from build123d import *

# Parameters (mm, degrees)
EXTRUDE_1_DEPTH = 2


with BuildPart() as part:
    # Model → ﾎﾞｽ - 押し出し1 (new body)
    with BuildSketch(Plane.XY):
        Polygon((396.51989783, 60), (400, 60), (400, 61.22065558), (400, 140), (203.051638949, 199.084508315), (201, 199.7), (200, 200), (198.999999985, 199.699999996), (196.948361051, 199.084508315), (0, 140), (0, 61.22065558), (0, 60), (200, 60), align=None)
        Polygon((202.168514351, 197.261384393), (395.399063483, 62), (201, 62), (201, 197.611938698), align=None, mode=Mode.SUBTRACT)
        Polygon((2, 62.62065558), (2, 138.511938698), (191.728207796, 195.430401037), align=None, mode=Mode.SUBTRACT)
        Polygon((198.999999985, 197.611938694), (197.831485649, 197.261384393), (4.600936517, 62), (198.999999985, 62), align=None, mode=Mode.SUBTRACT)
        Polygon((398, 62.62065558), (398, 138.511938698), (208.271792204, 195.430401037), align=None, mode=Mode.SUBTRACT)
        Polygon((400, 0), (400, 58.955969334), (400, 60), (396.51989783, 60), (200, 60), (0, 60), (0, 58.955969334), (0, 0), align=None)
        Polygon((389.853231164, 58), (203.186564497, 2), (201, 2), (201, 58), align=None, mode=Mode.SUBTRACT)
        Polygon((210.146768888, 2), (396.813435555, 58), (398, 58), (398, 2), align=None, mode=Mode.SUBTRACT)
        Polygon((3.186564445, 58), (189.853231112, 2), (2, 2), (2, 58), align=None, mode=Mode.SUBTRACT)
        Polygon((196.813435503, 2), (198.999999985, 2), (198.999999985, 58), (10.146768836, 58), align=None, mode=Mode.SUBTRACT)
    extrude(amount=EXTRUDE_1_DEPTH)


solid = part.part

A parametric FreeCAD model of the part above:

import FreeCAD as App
import Part
import Sketcher

doc = App.newDocument("Part")
body = doc.addObject("PartDesign::Body", "Body")

# Sketch on XY plane
sketch1 = doc.addObject("Sketcher::SketchObject", "Sketch")
body.addObject(sketch1)
sketch1.AttachmentSupport = (doc.XY_Plane, [""])
sketch1.MapMode = "FlatFace"
sketch1.addGeometry(Part.LineSegment(App.Vector(400, 140, 0), App.Vector(203.1, 199.1, 0)), False)
sketch1.addGeometry(Part.LineSegment(App.Vector(203.1, 199.1, 0), App.Vector(201, 199.7, 0)), False)
sketch1.addGeometry(Part.LineSegment(App.Vector(201, 199.7, 0), App.Vector(200, 200, 0)), False)
sketch1.addGeometry(Part.LineSegment(App.Vector(200, 200, 0), App.Vector(199, 199.7, 0)), False)
sketch1.addGeometry(Part.LineSegment(App.Vector(199, 199.7, 0), App.Vector(196.9, 199.1, 0)), False)
sketch1.addGeometry(Part.LineSegment(App.Vector(196.9, 199.1, 0), App.Vector(0, 140, 0)), False)
sketch1.addGeometry(Part.LineSegment(App.Vector(0, 140, 0), App.Vector(0, 0, 0)), False)
sketch1.addGeometry(Part.LineSegment(App.Vector(0, 0, 0), App.Vector(400, 0, 0)), False)
sketch1.addGeometry(Part.LineSegment(App.Vector(400, 0, 0), App.Vector(400, 140, 0)), False)
sketch1.addGeometry(Part.LineSegment(App.Vector(2, 58, 0), App.Vector(3.2, 58, 0)), False)
sketch1.addGeometry(Part.LineSegment(App.Vector(3.2, 58, 0), App.Vector(189.9, 2, 0)), False)
sketch1.addGeometry(Part.LineSegment(App.Vector(189.9, 2, 0), App.Vector(2, 2, 0)), False)
sketch1.addGeometry(Part.LineSegment(App.Vector(2, 2, 0), App.Vector(2, 58, 0)), False)
sketch1.addGeometry(Part.LineSegment(App.Vector(199, 2, 0), App.Vector(196.8, 2, 0)), False)
sketch1.addGeometry(Part.LineSegment(App.Vector(196.8, 2, 0), App.Vector(10.1, 58, 0)), False)
sketch1.addGeometry(Part.LineSegment(App.Vector(10.1, 58, 0), App.Vector(199, 58, 0)), False)
sketch1.addGeometry(Part.LineSegment(App.Vector(199, 58, 0), App.Vector(199, 2, 0)), False)
sketch1.addGeometry(Part.LineSegment(App.Vector(201, 58, 0), App.Vector(389.9, 58, 0)), False)
sketch1.addGeometry(Part.LineSegment(App.Vector(389.9, 58, 0), App.Vector(203.2, 2, 0)), False)
sketch1.addGeometry(Part.LineSegment(App.Vector(203.2, 2, 0), App.Vector(201, 2, 0)), False)
sketch1.addGeometry(Part.LineSegment(App.Vector(201, 2, 0), App.Vector(201, 58, 0)), False)
sketch1.addGeometry(Part.LineSegment(App.Vector(398, 2, 0), App.Vector(210.1, 2, 0)), False)
sketch1.addGeometry(Part.LineSegment(App.Vector(210.1, 2, 0), App.Vector(396.8, 58, 0)), False)
sketch1.addGeometry(Part.LineSegment(App.Vector(396.8, 58, 0), App.Vector(398, 58, 0)), False)
sketch1.addGeometry(Part.LineSegment(App.Vector(398, 58, 0), App.Vector(398, 2, 0)), False)
sketch1.addGeometry(Part.LineSegment(App.Vector(191.7, 195.4, 0), App.Vector(2, 62.6, 0)), False)
sketch1.addGeometry(Part.LineSegment(App.Vector(2, 62.6, 0), App.Vector(2, 138.5, 0)), False)
sketch1.addGeometry(Part.LineSegment(App.Vector(2, 138.5, 0), App.Vector(191.7, 195.4, 0)), False)
sketch1.addGeometry(Part.LineSegment(App.Vector(197.8, 197.3, 0), App.Vector(199, 197.6, 0)), False)
sketch1.addGeometry(Part.LineSegment(App.Vector(199, 197.6, 0), App.Vector(199, 62, 0)), False)
sketch1.addGeometry(Part.LineSegment(App.Vector(199, 62, 0), App.Vector(4.6, 62, 0)), False)
sketch1.addGeometry(Part.LineSegment(App.Vector(4.6, 62, 0), App.Vector(197.8, 197.3, 0)), False)
sketch1.addGeometry(Part.LineSegment(App.Vector(201, 197.6, 0), App.Vector(202.2, 197.3, 0)), False)
sketch1.addGeometry(Part.LineSegment(App.Vector(202.2, 197.3, 0), App.Vector(395.4, 62, 0)), False)
sketch1.addGeometry(Part.LineSegment(App.Vector(395.4, 62, 0), App.Vector(201, 62, 0)), False)
sketch1.addGeometry(Part.LineSegment(App.Vector(201, 62, 0), App.Vector(201, 197.6, 0)), False)
sketch1.addGeometry(Part.LineSegment(App.Vector(398, 138.5, 0), App.Vector(398, 62.6, 0)), False)
sketch1.addGeometry(Part.LineSegment(App.Vector(398, 62.6, 0), App.Vector(208.3, 195.4, 0)), False)
sketch1.addGeometry(Part.LineSegment(App.Vector(208.3, 195.4, 0), App.Vector(398, 138.5, 0)), False)
sketch1.addConstraint(Sketcher.Constraint("Coincident", 0, 2, 1, 1))
sketch1.addConstraint(Sketcher.Constraint("Coincident", 1, 2, 2, 1))
sketch1.addConstraint(Sketcher.Constraint("Coincident", 2, 2, 3, 1))
sketch1.addConstraint(Sketcher.Constraint("Coincident", 3, 2, 4, 1))
sketch1.addConstraint(Sketcher.Constraint("Coincident", 4, 2, 5, 1))
sketch1.addConstraint(Sketcher.Constraint("Coincident", 5, 2, 6, 1))
sketch1.addConstraint(Sketcher.Constraint("Coincident", 6, 2, 7, 1))
sketch1.addConstraint(Sketcher.Constraint("Coincident", 7, 2, 8, 1))
sketch1.addConstraint(Sketcher.Constraint("Coincident", 8, 2, 0, 1))
sketch1.addConstraint(Sketcher.Constraint("Coincident", 9, 2, 10, 1))
sketch1.addConstraint(Sketcher.Constraint("Coincident", 10, 2, 11, 1))
sketch1.addConstraint(Sketcher.Constraint("Coincident", 11, 2, 12, 1))
sketch1.addConstraint(Sketcher.Constraint("Coincident", 12, 2, 9, 1))
sketch1.addConstraint(Sketcher.Constraint("Coincident", 13, 2, 14, 1))
sketch1.addConstraint(Sketcher.Constraint("Coincident", 14, 2, 15, 1))
sketch1.addConstraint(Sketcher.Constraint("Coincident", 15, 2, 16, 1))
sketch1.addConstraint(Sketcher.Constraint("Coincident", 16, 2, 13, 1))
sketch1.addConstraint(Sketcher.Constraint("Coincident", 17, 2, 18, 1))
sketch1.addConstraint(Sketcher.Constraint("Coincident", 18, 2, 19, 1))
sketch1.addConstraint(Sketcher.Constraint("Coincident", 19, 2, 20, 1))
sketch1.addConstraint(Sketcher.Constraint("Coincident", 20, 2, 17, 1))
sketch1.addConstraint(Sketcher.Constraint("Coincident", 21, 2, 22, 1))
sketch1.addConstraint(Sketcher.Constraint("Coincident", 22, 2, 23, 1))
sketch1.addConstraint(Sketcher.Constraint("Coincident", 23, 2, 24, 1))
sketch1.addConstraint(Sketcher.Constraint("Coincident", 24, 2, 21, 1))
sketch1.addConstraint(Sketcher.Constraint("Coincident", 25, 2, 26, 1))
sketch1.addConstraint(Sketcher.Constraint("Coincident", 26, 2, 27, 1))
sketch1.addConstraint(Sketcher.Constraint("Coincident", 27, 2, 25, 1))
sketch1.addConstraint(Sketcher.Constraint("Coincident", 28, 2, 29, 1))
sketch1.addConstraint(Sketcher.Constraint("Coincident", 29, 2, 30, 1))
sketch1.addConstraint(Sketcher.Constraint("Coincident", 30, 2, 31, 1))
sketch1.addConstraint(Sketcher.Constraint("Coincident", 31, 2, 28, 1))
sketch1.addConstraint(Sketcher.Constraint("Coincident", 32, 2, 33, 1))
sketch1.addConstraint(Sketcher.Constraint("Coincident", 33, 2, 34, 1))
sketch1.addConstraint(Sketcher.Constraint("Coincident", 34, 2, 35, 1))
sketch1.addConstraint(Sketcher.Constraint("Coincident", 35, 2, 32, 1))
sketch1.addConstraint(Sketcher.Constraint("Coincident", 36, 2, 37, 1))
sketch1.addConstraint(Sketcher.Constraint("Coincident", 37, 2, 38, 1))
sketch1.addConstraint(Sketcher.Constraint("Coincident", 38, 2, 36, 1))
sketch1.addConstraint(Sketcher.Constraint("Vertical", 6))
sketch1.addConstraint(Sketcher.Constraint("Horizontal", 7))
sketch1.addConstraint(Sketcher.Constraint("Vertical", 8))
sketch1.addConstraint(Sketcher.Constraint("Horizontal", 9))
sketch1.addConstraint(Sketcher.Constraint("Horizontal", 11))
sketch1.addConstraint(Sketcher.Constraint("Vertical", 12))
sketch1.addConstraint(Sketcher.Constraint("Horizontal", 13))
sketch1.addConstraint(Sketcher.Constraint("Horizontal", 15))
sketch1.addConstraint(Sketcher.Constraint("Vertical", 16))
sketch1.addConstraint(Sketcher.Constraint("Horizontal", 17))
sketch1.addConstraint(Sketcher.Constraint("Horizontal", 19))
sketch1.addConstraint(Sketcher.Constraint("Vertical", 20))
sketch1.addConstraint(Sketcher.Constraint("Horizontal", 21))
sketch1.addConstraint(Sketcher.Constraint("Horizontal", 23))
sketch1.addConstraint(Sketcher.Constraint("Vertical", 24))
sketch1.addConstraint(Sketcher.Constraint("Vertical", 26))
sketch1.addConstraint(Sketcher.Constraint("Vertical", 29))
sketch1.addConstraint(Sketcher.Constraint("Horizontal", 30))
sketch1.addConstraint(Sketcher.Constraint("Horizontal", 34))
sketch1.addConstraint(Sketcher.Constraint("Vertical", 35))
sketch1.addConstraint(Sketcher.Constraint("Vertical", 36))
sketch1.addConstraint(Sketcher.Constraint("Coincident", 6, 2, -1, 1))
sketch1.addConstraint(Sketcher.Constraint("Parallel", 0, 1))
sketch1.addConstraint(Sketcher.Constraint("Parallel", 1, 2))
sketch1.addConstraint(Sketcher.Constraint("Parallel", 3, 4))
sketch1.addConstraint(Sketcher.Constraint("Parallel", 4, 5))
sketch1.addConstraint(Sketcher.Constraint("Parallel", 2, 10))
sketch1.addConstraint(Sketcher.Constraint("Parallel", 10, 14))
sketch1.addConstraint(Sketcher.Constraint("Parallel", 5, 18))
sketch1.addConstraint(Sketcher.Constraint("Parallel", 18, 22))
sketch1.addConstraint(Sketcher.Constraint("Parallel", 22, 27))
sketch1.addConstraint(Sketcher.Constraint("Parallel", 27, 28))
sketch1.addConstraint(Sketcher.Constraint("Parallel", 25, 31))
sketch1.addConstraint(Sketcher.Constraint("Parallel", 14, 32))
sketch1.addConstraint(Sketcher.Constraint("Parallel", 33, 37))
sketch1.addConstraint(Sketcher.Constraint("Parallel", 32, 38))
sketch1.addConstraint(Sketcher.Constraint("Horizontal", 1, 2, 3, 2))
sketch1.addConstraint(Sketcher.Constraint("Horizontal", 0, 2, 4, 2))
sketch1.addConstraint(Sketcher.Constraint("Horizontal", 5, 2, 8, 2))
sketch1.addConstraint(Sketcher.Constraint("Horizontal", 11, 2, 13, 2))
sketch1.addConstraint(Sketcher.Constraint("Horizontal", 12, 2, 14, 2))
sketch1.addConstraint(Sketcher.Constraint("Horizontal", 15, 2, 17, 2))
sketch1.addConstraint(Sketcher.Constraint("Horizontal", 16, 2, 18, 2))
sketch1.addConstraint(Sketcher.Constraint("Horizontal", 19, 2, 21, 2))
sketch1.addConstraint(Sketcher.Constraint("Horizontal", 20, 2, 22, 2))
sketch1.addConstraint(Sketcher.Constraint("Horizontal", 31, 2, 32, 2))
sketch1.addConstraint(Sketcher.Constraint("Horizontal", 30, 2, 33, 2))
sketch1.addConstraint(Sketcher.Constraint("Horizontal", 28, 2, 35, 2))
sketch1.addConstraint(Sketcher.Constraint("Horizontal", 25, 2, 36, 2))
sketch1.addConstraint(Sketcher.Constraint("Horizontal", 27, 2, 37, 2))
sketch1.addConstraint(Sketcher.Constraint("Horizontal", 26, 2, 38, 2))
sketch1.addConstraint(Sketcher.Constraint("Vertical", 3, 2, 15, 2))
sketch1.addConstraint(Sketcher.Constraint("Vertical", 1, 2, 19, 2))
sketch1.addConstraint(Sketcher.Constraint("Vertical", 12, 2, 25, 2))
sketch1.addConstraint(Sketcher.Constraint("Vertical", 16, 2, 28, 2))
sketch1.addConstraint(Sketcher.Constraint("Vertical", 20, 2, 34, 2))
sketch1.addConstraint(Sketcher.Constraint("Vertical", 24, 2, 36, 2))
sketch1.addConstraint(Sketcher.Constraint("Equal", 15, 17))
sketch1.addConstraint(Sketcher.Constraint("Equal", 13, 19))
sketch1.addConstraint(Sketcher.Constraint("Equal", 11, 21))
sketch1.addConstraint(Sketcher.Constraint("DistanceX", 7, 1, 7, 2, 400.0))
sketch1.addConstraint(Sketcher.Constraint("DistanceY", 6, 2, 6, 1, 140.0))
sketch1.addConstraint(Sketcher.Constraint("DistanceY", 12, 1, 12, 2, 56.0))
sketch1.addConstraint(Sketcher.Constraint("DistanceX", -1, 1, 1, 2, 201.0))
sketch1.addConstraint(Sketcher.Constraint("DistanceY", -1, 1, 2, 2, 200.0))
sketch1.addConstraint(Sketcher.Constraint("DistanceY", -1, 1, 9, 2, 58.0))
sketch1.addConstraint(Sketcher.Constraint("DistanceX", -1, 1, 11, 2, 2.0))
sketch1.addConstraint(Sketcher.Constraint("DistanceX", -1, 1, 23, 2, 398.0))
sketch1.addConstraint(Sketcher.Constraint("DistanceY", -1, 1, 29, 2, 62.0))
sketch1.addConstraint(Sketcher.Constraint("DistanceX", 11, 2, 11, 1, 187.853231))
sketch1.addConstraint(Sketcher.Constraint("DistanceX", 15, 1, 15, 2, 188.853231))
sketch1.addConstraint(Sketcher.Constraint("DistanceY", 29, 2, 29, 1, 135.611939))
sketch1.addConstraint(Sketcher.Constraint("DistanceY", -1, 1, 27, 2, 195.430401))
sketch1.addConstraint(Sketcher.Constraint("DistanceX", 30, 2, 30, 1, 194.399063))
sketch1.addConstraint(Sketcher.Constraint("DistanceY", 26, 1, 26, 2, 75.891283))
sketch1.addConstraint(Sketcher.Constraint("DistanceX", -1, 1, 0, 2, 203.051639))
sketch1.addConstraint(Sketcher.Constraint("DistanceY", -1, 1, 26, 2, 138.511939))
pad1 = doc.addObject("PartDesign::Pad", "Pad")
body.addObject(pad1)
pad1.Profile = sketch1
pad1.Length = 2

doc.recompute()
